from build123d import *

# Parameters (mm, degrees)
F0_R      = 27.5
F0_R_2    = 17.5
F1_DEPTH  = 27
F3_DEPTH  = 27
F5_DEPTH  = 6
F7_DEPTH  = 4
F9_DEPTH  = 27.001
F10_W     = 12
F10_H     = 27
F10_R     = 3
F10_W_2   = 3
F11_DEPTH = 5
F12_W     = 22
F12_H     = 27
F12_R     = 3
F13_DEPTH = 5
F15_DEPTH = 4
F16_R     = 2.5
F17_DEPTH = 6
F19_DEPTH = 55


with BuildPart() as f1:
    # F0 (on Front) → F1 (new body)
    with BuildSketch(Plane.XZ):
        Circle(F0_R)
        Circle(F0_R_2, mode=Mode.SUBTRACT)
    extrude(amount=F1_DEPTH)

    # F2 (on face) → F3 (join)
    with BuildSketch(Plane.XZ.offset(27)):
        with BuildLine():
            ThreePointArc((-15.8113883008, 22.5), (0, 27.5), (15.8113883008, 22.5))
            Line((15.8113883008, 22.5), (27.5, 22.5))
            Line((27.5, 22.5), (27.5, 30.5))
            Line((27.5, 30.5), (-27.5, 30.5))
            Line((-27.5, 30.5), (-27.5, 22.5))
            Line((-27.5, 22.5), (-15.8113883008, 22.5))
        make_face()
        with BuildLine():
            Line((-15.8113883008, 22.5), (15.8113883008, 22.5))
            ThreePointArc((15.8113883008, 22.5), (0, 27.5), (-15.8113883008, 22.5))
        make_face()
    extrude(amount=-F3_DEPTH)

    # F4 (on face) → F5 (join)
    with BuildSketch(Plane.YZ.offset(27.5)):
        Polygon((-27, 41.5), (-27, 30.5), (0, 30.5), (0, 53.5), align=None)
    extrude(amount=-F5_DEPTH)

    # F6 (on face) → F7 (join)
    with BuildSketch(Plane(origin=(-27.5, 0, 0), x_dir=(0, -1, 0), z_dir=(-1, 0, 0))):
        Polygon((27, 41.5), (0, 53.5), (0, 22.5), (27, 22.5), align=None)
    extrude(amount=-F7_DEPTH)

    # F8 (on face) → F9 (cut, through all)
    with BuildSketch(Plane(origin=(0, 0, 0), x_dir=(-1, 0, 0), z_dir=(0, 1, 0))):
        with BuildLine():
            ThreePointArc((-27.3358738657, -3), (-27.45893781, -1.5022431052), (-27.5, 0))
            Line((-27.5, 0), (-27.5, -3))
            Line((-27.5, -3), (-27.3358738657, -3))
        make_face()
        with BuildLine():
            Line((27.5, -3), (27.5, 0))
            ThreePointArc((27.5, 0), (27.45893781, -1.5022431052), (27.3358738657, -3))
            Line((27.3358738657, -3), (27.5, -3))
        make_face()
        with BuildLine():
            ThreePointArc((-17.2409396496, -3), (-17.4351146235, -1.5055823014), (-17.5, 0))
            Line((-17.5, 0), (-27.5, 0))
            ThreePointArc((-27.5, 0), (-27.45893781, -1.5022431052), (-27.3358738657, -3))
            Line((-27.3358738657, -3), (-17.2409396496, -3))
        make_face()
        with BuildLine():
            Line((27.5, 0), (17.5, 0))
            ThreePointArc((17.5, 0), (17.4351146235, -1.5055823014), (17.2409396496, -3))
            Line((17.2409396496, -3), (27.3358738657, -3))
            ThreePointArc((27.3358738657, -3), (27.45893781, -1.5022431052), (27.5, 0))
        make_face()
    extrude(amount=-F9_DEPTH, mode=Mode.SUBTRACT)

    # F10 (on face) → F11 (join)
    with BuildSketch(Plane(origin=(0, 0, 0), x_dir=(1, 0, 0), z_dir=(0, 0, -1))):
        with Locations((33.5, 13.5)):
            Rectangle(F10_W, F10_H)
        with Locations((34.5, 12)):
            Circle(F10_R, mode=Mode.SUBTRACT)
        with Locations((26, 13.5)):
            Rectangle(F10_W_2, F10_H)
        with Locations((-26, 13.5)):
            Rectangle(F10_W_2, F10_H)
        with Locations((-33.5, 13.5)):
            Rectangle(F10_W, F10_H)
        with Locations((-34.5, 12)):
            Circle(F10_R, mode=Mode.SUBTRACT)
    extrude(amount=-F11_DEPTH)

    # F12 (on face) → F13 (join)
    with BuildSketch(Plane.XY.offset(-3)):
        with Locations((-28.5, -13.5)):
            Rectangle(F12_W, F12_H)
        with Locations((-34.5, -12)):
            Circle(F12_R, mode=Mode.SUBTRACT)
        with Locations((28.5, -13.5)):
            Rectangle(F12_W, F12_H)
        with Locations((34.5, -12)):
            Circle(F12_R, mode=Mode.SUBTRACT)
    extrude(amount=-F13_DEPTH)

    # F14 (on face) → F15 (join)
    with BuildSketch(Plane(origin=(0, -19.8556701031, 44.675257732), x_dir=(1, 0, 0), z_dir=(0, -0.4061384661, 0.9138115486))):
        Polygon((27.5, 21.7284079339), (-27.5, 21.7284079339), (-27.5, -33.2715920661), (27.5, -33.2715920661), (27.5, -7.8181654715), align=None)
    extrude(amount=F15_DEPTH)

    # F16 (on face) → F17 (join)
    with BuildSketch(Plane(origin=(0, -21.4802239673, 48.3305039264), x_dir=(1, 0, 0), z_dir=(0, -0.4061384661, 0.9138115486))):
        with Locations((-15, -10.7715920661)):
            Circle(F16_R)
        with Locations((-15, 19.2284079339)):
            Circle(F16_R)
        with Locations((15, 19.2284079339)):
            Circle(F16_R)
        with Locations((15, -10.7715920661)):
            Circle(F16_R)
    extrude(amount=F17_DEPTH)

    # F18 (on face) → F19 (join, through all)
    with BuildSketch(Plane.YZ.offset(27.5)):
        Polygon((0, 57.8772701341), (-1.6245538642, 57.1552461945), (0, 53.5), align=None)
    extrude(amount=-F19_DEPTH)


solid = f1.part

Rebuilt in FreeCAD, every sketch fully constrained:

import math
import FreeCAD as App
import Part
import Sketcher

V = App.Vector


def add_polygon(sketch, points):
    """Adds a closed chain of lines whose ends are joined by coincident constraints."""
    first, n = sketch.GeometryCount, len(points)
    for a, b in zip(points, points[1:] + points[:1]):
        sketch.addGeometry(Part.LineSegment(App.Vector(*a, 0), App.Vector(*b, 0)), False)
    for i in range(n):
        sketch.addConstraint(Sketcher.Constraint("Coincident", first + i, 2, first + (i + 1) % n, 1))

doc = App.newDocument("Part")
body = doc.addObject("PartDesign::Body", "Body")
body.AllowCompound = True

# Sketch on XZ plane
sketch1 = body.newObject("Sketcher::SketchObject", "Sketch")
sketch1.AttachmentSupport = (doc.getObject("XZ_Plane"), [""])
sketch1.MapMode = "FlatFace"
sketch1.addGeometry([
    Part.Circle(V(0, 0, 0), V(0, 0, 1), 28),
    Part.Circle(V(0, 0, 0), V(0, 0, 1), 18),
], False)
sketch1.addConstraint([
    Sketcher.Constraint("Coincident", 0, 3, -1, 1),
    Sketcher.Constraint("Coincident", 1, 3, -1, 1),
    Sketcher.Constraint("Diameter", 0, 55.0),
    Sketcher.Constraint("Diameter", 1, 35.0),
])
pad1 = body.newObject("PartDesign::Pad", "Pad")
pad1.Profile = sketch1
pad1.Length = 27

# Sketch on XZ plane
sketch2 = body.newObject("Sketcher::SketchObject", "Sketch001")
sketch2.AttachmentSupport = (doc.getObject("XZ_Plane"), [""])
sketch2.MapMode = "FlatFace"
sketch2.AttachmentOffset = App.Placement(V(0, 0, 27), App.Rotation())
add_polygon(sketch2, [(28, 22), (28, 30), (-28, 30), (-28, 22)])  # lines 0-3
sketch2.addConstraint([
    Sketcher.Constraint("Vertical", 0),
    Sketcher.Constraint("Horizontal", 1),
    Sketcher.Constraint("Vertical", 2),
    Sketcher.Constraint("Horizontal", 3),
    Sketcher.Constraint("DistanceX", 1, 2, 1, 1, 55.0),
    Sketcher.Constraint("DistanceY", 0, 1, 0, 2, 8.0),
    Sketcher.Constraint("DistanceX", -1, 1, 0, 2, 27.5),
    Sketcher.Constraint("DistanceY", -1, 1, 0, 2, 30.5),
])
pad2 = body.newObject("PartDesign::Pad", "Pad001")
pad2.Profile = sketch2
pad2.Length = 27
pad2.Reversed = True

# Sketch on YZ plane
sketch3 = body.newObject("Sketcher::SketchObject", "Sketch002")
sketch3.AttachmentSupport = (doc.getObject("YZ_Plane"), [""])
sketch3.MapMode = "FlatFace"
sketch3.AttachmentOffset = App.Placement(V(0, 0, 27.5), App.Rotation())
add_polygon(sketch3, [(-27, 42), (-27, 30), (0, 30), (0, 54)])  # lines 0-3
sketch3.addConstraint([
    Sketcher.Constraint("Vertical", 0),
    Sketcher.Constraint("Horizontal", 1),
    Sketcher.Constraint("Vertical", 2),
    Sketcher.Constraint("PointOnObject", 1, 2, -2),
    Sketcher.Constraint("DistanceX", 1, 1, 1, 2, 27.0),
    Sketcher.Constraint("DistanceY", 0, 2, 0, 1, 11.0),
    Sketcher.Constraint("DistanceY", 2, 1, 2, 2, 23.0),
    Sketcher.Constraint("DistanceY", -1, 1, 0, 2, 30.5),
])
pad3 = body.newObject("PartDesign::Pad", "Pad002")
pad3.Profile = sketch3
pad3.Length = 6
pad3.Reversed = True

# Sketch on YZ plane
sketch4 = body.newObject("Sketcher::SketchObject", "Sketch003")
sketch4.AttachmentSupport = (doc.getObject("YZ_Plane"), [""])
sketch4.MapMode = "FlatFace"
sketch4.AttachmentOffset = App.Placement(V(0, 0, -27.5), App.Rotation())
add_polygon(sketch4, [(-27, 42), (0, 54), (0, 22), (-27, 22)])  # lines 0-3
sketch4.addConstraint([
    Sketcher.Constraint("Vertical", 1),
    Sketcher.Constraint("Horizontal", 2),
    Sketcher.Constraint("Vertical", 3),
    Sketcher.Constraint("PointOnObject", 0, 2, -2),
    Sketcher.Constraint("DistanceX", 2, 2, 2, 1, 27.0),
    Sketcher.Constraint("DistanceY", 1, 2, 1, 1, 31.0),
    Sketcher.Constraint("DistanceY", 3, 1, 3, 2, 19.0),
    Sketcher.Constraint("DistanceY", -1, 1, 0, 2, 53.5),
])
pad4 = body.newObject("PartDesign::Pad", "Pad003")
pad4.Profile = sketch4
pad4.Length = 4

# Sketch on XZ plane
sketch5 = body.newObject("Sketcher::SketchObject", "Sketch004")
sketch5.AttachmentSupport = (doc.getObject("XZ_Plane"), [""])
sketch5.MapMode = "FlatFace"
sketch5.addGeometry([
    Part.LineSegment(V(27.5, 0, 0), V(27.5, -3, 0)),  # 0
    Part.LineSegment(V(27.5, -3, 0), V(17.2, -3, 0)),  # 1
    Part.ArcOfCircle(Part.Circle(V(0, 0, 0), V(0, 0, 1), 17.5), math.radians(-9.87), math.radians(0)),  # 2
    Part.LineSegment(V(17.5, 0, 0), V(27.5, 0, 0)),  # 3
    Part.LineSegment(V(-27.5, -3, 0), V(-27.5, 0, 0)),  # 4
    Part.LineSegment(V(-27.5, 0, 0), V(-17.5, 0, 0)),  # 5
    Part.ArcOfCircle(Part.Circle(V(0, 0, 0), V(0, 0, 1), 17.5), math.radians(180), math.radians(189.87)),  # 6
    Part.LineSegment(V(-17.2, -3, 0), V(-27.5, -3, 0)),  # 7
], False)
sketch5.addConstraint([
    Sketcher.Constraint("Coincident", 0, 2, 1, 1),
    Sketcher.Constraint("Coincident", 1, 2, 2, 1),
    Sketcher.Constraint("Coincident", 2, 2, 3, 1),
    Sketcher.Constraint("Coincident", 3, 2, 0, 1),
    Sketcher.Constraint("Coincident", 4, 2, 5, 1),
    Sketcher.Constraint("Coincident", 5, 2, 6, 1),
    Sketcher.Constraint("Coincident", 6, 2, 7, 1),
    Sketcher.Constraint("Coincident", 7, 2, 4, 1),
    Sketcher.Constraint("Vertical", 0),
    Sketcher.Constraint("Horizontal", 1),
    Sketcher.Constraint("Horizontal", 3),
    Sketcher.Constraint("Vertical", 4),
    Sketcher.Constraint("Horizontal", 5),
    Sketcher.Constraint("Horizontal", 7),
    Sketcher.Constraint("Coincident", 2, 3, -1, 1),
    Sketcher.Constraint("Coincident", 6, 3, -1, 1),
    Sketcher.Constraint("Equal", 2, 6),
    Sketcher.Constraint("Symmetric", 3, 2, 4, 2, -1, 1),
    Sketcher.Constraint("PointOnObject", 2, 2, -1),
    Sketcher.Constraint("Horizontal", 1, 2, 6, 2),
    Sketcher.Constraint("Radius", 2, 17.5),
    Sketcher.Constraint("DistanceX", 3, 1, 3, 2, 10.0),
    Sketcher.Constraint("DistanceY", 0, 2, 0, 1, 3.0),
])
pocket1 = body.newObject("PartDesign::Pocket", "Pocket")
pocket1.Profile = sketch5
pocket1.Type = "ThroughAll"
pocket1.Reversed = True

# Sketch on XY plane
sketch6 = body.newObject("Sketcher::SketchObject", "Sketch005")
sketch6.AttachmentSupport = (doc.getObject("XY_Plane"), [""])
sketch6.MapMode = "FlatFace"
add_polygon(sketch6, [(39.5, 0), (39.5, -27), (24.5, -27), (24.5, 0)])  # lines 0-3
sketch6.addGeometry(Part.Circle(V(34.5, -12, 0), V(0, 0, 1), 3), False)  # 4
add_polygon(sketch6, [(-24.5, 0), (-24.5, -27), (-39.5, -27), (-39.5, 0)])  # lines 5-8
sketch6.addGeometry(Part.Circle(V(-34.5, -12, 0), V(0, 0, 1), 3), False)  # 9
sketch6.addConstraint([
    Sketcher.Constraint("Vertical", 0),
    Sketcher.Constraint("Horizontal", 1),
    Sketcher.Constraint("Vertical", 2),
    Sketcher.Constraint("Horizontal", 3),
    Sketcher.Constraint("Vertical", 5),
    Sketcher.Constraint("Horizontal", 6),
    Sketcher.Constraint("Vertical", 7),
    Sketcher.Constraint("Horizontal", 8),
    Sketcher.Constraint("Equal", 4, 9),
    Sketcher.Constraint("Symmetric", 3, 2, 7, 2, -1, 1),
    Sketcher.Constraint("Symmetric", 4, 3, 9, 3, -2),
    Sketcher.Constraint("Symmetric", 1, 2, 5, 2, -2),
    Sketcher.Constraint("PointOnObject", 2, 2, -1),
    Sketcher.Constraint("Diameter", 4, 6.0),
    Sketcher.Constraint("DistanceX", 1, 2, 1, 1, 15.0),
    Sketcher.Constraint("DistanceY", 0, 2, 0, 1, 27.0),
    Sketcher.Constraint("DistanceY", 4, 3, -1, 1, 12.0),
    Sketcher.Constraint("DistanceX", 9, 3, 4, 3, 69.0),
    Sketcher.Constraint("DistanceX", 4, 3, 0, 2, 5.0),
])
pad5 = body.newObject("PartDesign::Pad", "Pad004")
pad5.Profile = sketch6
pad5.Length = 5

# Sketch on XY plane
sketch7 = body.newObject("Sketcher::SketchObject", "Sketch006")
sketch7.AttachmentSupport = (doc.getObject("XY_Plane"), [""])
sketch7.MapMode = "FlatFace"
sketch7.AttachmentOffset = App.Placement(V(0, 0, -3), App.Rotation())
add_polygon(sketch7, [(-39.5, 0), (-39.5, -27), (-17.5, -27), (-17.5, 0)])  # lines 0-3
sketch7.addGeometry(Part.Circle(V(-34.5, -12, 0), V(0, 0, 1), 3), False)  # 4
add_polygon(sketch7, [(17.5, 0), (17.5, -27), (39.5, -27), (39.5, 0)])  # lines 5-8
sketch7.addGeometry(Part.Circle(V(34.5, -12, 0), V(0, 0, 1), 3), False)  # 9
sketch7.addConstraint([
    Sketcher.Constraint("Vertical", 0),
    Sketcher.Constraint("Horizontal", 1),
    Sketcher.Constraint("Vertical", 2),
    Sketcher.Constraint("Horizontal", 3),
    Sketcher.Constraint("Vertical", 5),
    Sketcher.Constraint("Horizontal", 6),
    Sketcher.Constraint("Vertical", 7),
    Sketcher.Constraint("Horizontal", 8),
    Sketcher.Constraint("Equal", 4, 9),
    Sketcher.Constraint("Symmetric", 3, 2, 7, 2, -1, 1),
    Sketcher.Constraint("Symmetric", 4, 3, 9, 3, -2),
    Sketcher.Constraint("Symmetric", 1, 2, 5, 2, -2),
    Sketcher.Constraint("PointOnObject", 2, 2, -1),
    Sketcher.Constraint("Diameter", 4, 6.0),
    Sketcher.Constraint("DistanceX", 1, 1, 1, 2, 22.0),
    Sketcher.Constraint("DistanceY", 0, 2, 0, 1, 27.0),
    Sketcher.Constraint("DistanceY", 4, 3, -1, 1, 12.0),
    Sketcher.Constraint("DistanceX", 4, 3, 9, 3, 69.0),
    Sketcher.Constraint("DistanceX", 0, 2, 4, 3, 5.0),
])
pad6 = body.newObject("PartDesign::Pad", "Pad005")
pad6.Profile = sketch7
pad6.Length = 5
pad6.Reversed = True

# Sketch on an angled plane
sketch8 = body.newObject("Sketcher::SketchObject", "Sketch007")
sketch8.Placement = App.Placement(V(0, -19.85567, 44.675258), App.Rotation(V(1, 0, 0), V(0, 0.913811549, 0.406138466), V(0, -0.406138466, 0.913811549), "ZXY"))
add_polygon(sketch8, [(28, 22), (-28, 22), (-28, -33), (28, -33)])  # lines 0-3
sketch8.addConstraint([
    Sketcher.Constraint("Horizontal", 0),
    Sketcher.Constraint("Vertical", 1),
    Sketcher.Constraint("Horizontal", 2),
    Sketcher.Constraint("Vertical", 3),
    Sketcher.Constraint("Equal", 2, 1),
    Sketcher.Constraint("DistanceX", 0, 2, 0, 1, 55.0),
    Sketcher.Constraint("DistanceX", 0, 2, -1, 1, 27.5),
    Sketcher.Constraint("DistanceY", -1, 1, 0, 2, 21.728408),
])
pad7 = body.newObject("PartDesign::Pad", "Pad006")
pad7.Profile = sketch8
pad7.Length = 4

# Sketch on an angled plane
sketch9 = body.newObject("Sketcher::SketchObject", "Sketch008")
sketch9.Placement = App.Placement(V(0, -21.480224, 48.330504), App.Rotation(V(1, 0, 0), V(0, 0.913811549, 0.406138466), V(0, -0.406138466, 0.913811549), "ZXY"))
sketch9.addGeometry([
    Part.Circle(V(-15, -10.8, 0), V(0, 0, 1), 2.5),
    Part.Circle(V(-15, 19.2, 0), V(0, 0, 1), 2.5),
    Part.Circle(V(15, 19.2, 0), V(0, 0, 1), 2.5),
    Part.Circle(V(15, -10.8, 0), V(0, 0, 1), 2.5),
], False)
sketch9.addConstraint([
    Sketcher.Constraint("Equal", 0, 1),
    Sketcher.Constraint("Equal", 1, 2),
    Sketcher.Constraint("Equal", 2, 3),
    Sketcher.Constraint("Symmetric", 1, 3, 2, 3, -2),
    Sketcher.Constraint("Symmetric", 0, 3, 3, 3, -2),
    Sketcher.Constraint("Vertical", 0, 3, 1, 3),
    Sketcher.Constraint("Diameter", 0, 5.0),
    Sketcher.Constraint("DistanceX", 0, 3, -1, 1, 15.0),
    Sketcher.Constraint("DistanceY", 0, 3, 1, 3, 30.0),
    Sketcher.Constraint("DistanceY", 0, 3, -1, 1, 10.771592),
])
pad8 = body.newObject("PartDesign::Pad", "Pad007")
pad8.Profile = sketch9
pad8.Length = 6

# Sketch on YZ plane
sketch10 = body.newObject("Sketcher::SketchObject", "Sketch009")
sketch10.AttachmentSupport = (doc.getObject("YZ_Plane"), [""])
sketch10.MapMode = "FlatFace"
sketch10.AttachmentOffset = App.Placement(V(0, 0, 27.5), App.Rotation())
add_polygon(sketch10, [(0, 57.9), (-1.6, 57.2), (0, 53.5)])  # lines 0-2
sketch10.addConstraint([
    Sketcher.Constraint("Vertical", 2),
    Sketcher.Constraint("PointOnObject", 1, 2, -2),
    Sketcher.Constraint("Perpendicular", 0, 1),
    Sketcher.Constraint("Distance", 1, 4.0),
    Sketcher.Constraint("DistanceY", -1, 1, 1, 2, 53.5),
    Sketcher.Constraint("DistanceY", 2, 1, 2, 2, 4.37727),
])
pad9 = body.newObject("PartDesign::Pad", "Pad008")
pad9.Profile = sketch10
pad9.Length = 55
pad9.Reversed = True

doc.recompute()
